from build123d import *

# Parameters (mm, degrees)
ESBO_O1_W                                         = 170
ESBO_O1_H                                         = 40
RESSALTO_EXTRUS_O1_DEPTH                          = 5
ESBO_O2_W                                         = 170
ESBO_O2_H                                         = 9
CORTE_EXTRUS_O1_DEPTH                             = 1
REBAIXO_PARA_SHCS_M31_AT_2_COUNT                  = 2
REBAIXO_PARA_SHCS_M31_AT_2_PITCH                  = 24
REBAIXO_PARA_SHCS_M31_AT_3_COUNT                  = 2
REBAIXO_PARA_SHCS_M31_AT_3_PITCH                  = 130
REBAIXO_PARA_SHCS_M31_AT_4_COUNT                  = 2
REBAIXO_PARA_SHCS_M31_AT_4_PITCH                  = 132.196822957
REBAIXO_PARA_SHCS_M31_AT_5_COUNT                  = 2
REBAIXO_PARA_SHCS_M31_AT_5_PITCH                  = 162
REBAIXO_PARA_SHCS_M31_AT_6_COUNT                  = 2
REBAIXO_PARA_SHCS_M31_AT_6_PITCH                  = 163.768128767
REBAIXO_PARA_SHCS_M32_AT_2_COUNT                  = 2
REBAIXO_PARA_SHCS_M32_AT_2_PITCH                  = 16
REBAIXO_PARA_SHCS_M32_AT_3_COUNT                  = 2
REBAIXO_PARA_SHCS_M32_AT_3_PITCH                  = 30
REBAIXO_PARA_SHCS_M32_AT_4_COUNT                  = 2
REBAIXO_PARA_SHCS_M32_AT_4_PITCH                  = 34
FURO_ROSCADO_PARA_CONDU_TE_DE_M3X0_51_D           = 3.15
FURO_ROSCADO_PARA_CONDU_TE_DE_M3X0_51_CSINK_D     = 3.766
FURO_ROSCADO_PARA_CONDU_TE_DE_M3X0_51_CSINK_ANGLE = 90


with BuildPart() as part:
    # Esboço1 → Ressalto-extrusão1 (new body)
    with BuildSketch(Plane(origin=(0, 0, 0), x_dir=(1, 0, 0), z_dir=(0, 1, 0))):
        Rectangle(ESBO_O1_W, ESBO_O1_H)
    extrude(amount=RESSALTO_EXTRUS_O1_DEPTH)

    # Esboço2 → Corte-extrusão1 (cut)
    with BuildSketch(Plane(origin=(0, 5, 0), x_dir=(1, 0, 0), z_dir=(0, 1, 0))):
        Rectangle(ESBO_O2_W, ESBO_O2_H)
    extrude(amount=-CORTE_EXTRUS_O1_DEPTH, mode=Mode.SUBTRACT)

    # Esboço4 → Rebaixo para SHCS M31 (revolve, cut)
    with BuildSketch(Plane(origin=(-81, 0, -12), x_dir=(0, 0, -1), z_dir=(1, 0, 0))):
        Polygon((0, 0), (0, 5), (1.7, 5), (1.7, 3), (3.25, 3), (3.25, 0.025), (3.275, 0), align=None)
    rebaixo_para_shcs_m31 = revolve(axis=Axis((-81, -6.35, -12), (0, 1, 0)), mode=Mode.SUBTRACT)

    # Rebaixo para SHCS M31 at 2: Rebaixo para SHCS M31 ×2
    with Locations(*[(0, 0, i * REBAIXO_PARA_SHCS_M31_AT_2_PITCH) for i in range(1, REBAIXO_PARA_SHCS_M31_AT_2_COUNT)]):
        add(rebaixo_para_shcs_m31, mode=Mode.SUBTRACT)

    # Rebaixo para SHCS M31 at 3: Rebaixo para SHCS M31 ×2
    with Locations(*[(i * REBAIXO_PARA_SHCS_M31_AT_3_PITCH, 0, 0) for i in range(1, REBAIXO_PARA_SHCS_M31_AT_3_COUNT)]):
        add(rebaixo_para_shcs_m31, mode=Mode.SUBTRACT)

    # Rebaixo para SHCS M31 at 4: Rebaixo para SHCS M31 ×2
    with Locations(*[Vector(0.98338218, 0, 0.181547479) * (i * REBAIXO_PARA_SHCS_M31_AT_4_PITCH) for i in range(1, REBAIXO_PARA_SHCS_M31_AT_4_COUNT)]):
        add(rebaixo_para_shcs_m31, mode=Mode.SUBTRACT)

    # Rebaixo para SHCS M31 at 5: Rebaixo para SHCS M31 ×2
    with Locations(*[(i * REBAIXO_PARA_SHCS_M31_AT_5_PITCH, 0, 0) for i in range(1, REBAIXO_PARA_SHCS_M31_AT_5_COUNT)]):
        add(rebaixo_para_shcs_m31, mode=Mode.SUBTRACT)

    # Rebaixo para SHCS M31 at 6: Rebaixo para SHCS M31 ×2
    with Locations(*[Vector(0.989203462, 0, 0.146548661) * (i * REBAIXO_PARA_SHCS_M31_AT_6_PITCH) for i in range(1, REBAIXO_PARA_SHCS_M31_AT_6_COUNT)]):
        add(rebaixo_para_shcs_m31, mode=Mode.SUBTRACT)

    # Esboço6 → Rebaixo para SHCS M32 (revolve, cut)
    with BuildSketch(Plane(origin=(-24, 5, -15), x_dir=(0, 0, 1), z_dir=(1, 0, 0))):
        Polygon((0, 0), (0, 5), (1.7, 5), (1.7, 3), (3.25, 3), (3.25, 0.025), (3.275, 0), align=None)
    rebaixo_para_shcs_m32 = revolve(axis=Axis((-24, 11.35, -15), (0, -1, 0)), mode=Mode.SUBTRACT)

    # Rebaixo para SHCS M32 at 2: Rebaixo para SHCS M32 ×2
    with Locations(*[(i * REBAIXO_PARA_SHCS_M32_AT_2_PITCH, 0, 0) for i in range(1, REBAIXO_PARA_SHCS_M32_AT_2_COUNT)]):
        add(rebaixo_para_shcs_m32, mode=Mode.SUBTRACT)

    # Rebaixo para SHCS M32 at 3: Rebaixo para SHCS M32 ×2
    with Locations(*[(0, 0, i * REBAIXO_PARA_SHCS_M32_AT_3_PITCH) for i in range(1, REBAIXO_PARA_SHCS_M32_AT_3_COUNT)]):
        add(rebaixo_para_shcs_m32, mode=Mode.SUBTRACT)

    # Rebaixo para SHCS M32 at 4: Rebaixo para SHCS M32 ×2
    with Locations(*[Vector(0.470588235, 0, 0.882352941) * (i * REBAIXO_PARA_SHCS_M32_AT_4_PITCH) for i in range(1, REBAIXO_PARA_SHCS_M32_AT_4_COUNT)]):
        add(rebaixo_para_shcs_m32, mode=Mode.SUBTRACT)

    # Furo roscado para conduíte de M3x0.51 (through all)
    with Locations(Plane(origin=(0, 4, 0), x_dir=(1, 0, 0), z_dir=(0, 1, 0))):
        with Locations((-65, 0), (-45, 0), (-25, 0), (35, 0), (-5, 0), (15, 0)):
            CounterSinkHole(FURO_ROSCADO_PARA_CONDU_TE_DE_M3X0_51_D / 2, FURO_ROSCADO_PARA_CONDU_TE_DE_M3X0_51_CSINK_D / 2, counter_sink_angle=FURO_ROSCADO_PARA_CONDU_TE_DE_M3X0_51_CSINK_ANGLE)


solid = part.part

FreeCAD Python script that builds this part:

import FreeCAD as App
import Part
import Sketcher
Q = App.Units.Quantity


def add_polygon(sketch, points):
    """Adds a closed chain of lines whose ends are joined by coincident constraints."""
    first, n = sketch.GeometryCount, len(points)
    for a, b in zip(points, points[1:] + points[:1]):
        sketch.addGeometry(Part.LineSegment(App.Vector(*a, 0), App.Vector(*b, 0)), False)
    for i in range(n):
        sketch.addConstraint(Sketcher.Constraint("Coincident", first + i, 2, first + (i + 1) % n, 1))

doc = App.newDocument("Part")
body = doc.addObject("PartDesign::Body", "Body")

# Sketch on XZ plane
sketch1 = doc.addObject("Sketcher::SketchObject", "Sketch")
body.addObject(sketch1)
sketch1.AttachmentSupport = (doc.XZ_Plane, [""])
sketch1.MapMode = "FlatFace"
add_polygon(sketch1, [(-85, -20), (-85, 20), (85, 20), (85, -20)])  # lines 0-3
sketch1.addConstraint(Sketcher.Constraint("Vertical", 0))
sketch1.addConstraint(Sketcher.Constraint("Horizontal", 1))
sketch1.addConstraint(Sketcher.Constraint("Vertical", 2))
sketch1.addConstraint(Sketcher.Constraint("Horizontal", 3))
sketch1.addConstraint(Sketcher.Constraint("Symmetric", 0, 2, 2, 2, -1, 1))
sketch1.addConstraint(Sketcher.Constraint("DistanceX", 1, 1, 1, 2, 170.0))
sketch1.addConstraint(Sketcher.Constraint("DistanceY", 0, 1, 0, 2, 40.0))
pad1 = doc.addObject("PartDesign::Pad", "Pad")
body.addObject(pad1)
pad1.Profile = sketch1
pad1.Length = 5
pad1.Reversed = True

# Sketch on XZ plane
sketch2 = doc.addObject("Sketcher::SketchObject", "Sketch001")
body.addObject(sketch2)
sketch2.AttachmentSupport = (doc.XZ_Plane, [""])
sketch2.MapMode = "FlatFace"
sketch2.AttachmentOffset = App.Placement(App.Vector(0, 0, -5), App.Rotation())
add_polygon(sketch2, [(-85, -4.5), (-85, 4.5), (85, 4.5), (85, -4.5)])  # lines 0-3
sketch2.addConstraint(Sketcher.Constraint("Vertical", 0))
sketch2.addConstraint(Sketcher.Constraint("Horizontal", 1))
sketch2.addConstraint(Sketcher.Constraint("Vertical", 2))
sketch2.addConstraint(Sketcher.Constraint("Horizontal", 3))
sketch2.addConstraint(Sketcher.Constraint("Symmetric", 0, 2, 2, 2, -1, 1))
sketch2.addConstraint(Sketcher.Constraint("DistanceX", 1, 1, 1, 2, 170.0))
sketch2.addConstraint(Sketcher.Constraint("DistanceY", 0, 1, 0, 2, 9.0))
pocket1 = doc.addObject("PartDesign::Pocket", "Pocket")
body.addObject(pocket1)
pocket1.Profile = sketch2
pocket1.Length = 1
pocket1.Reversed = True

# Sketch on YZ plane
sketch3 = doc.addObject("Sketcher::SketchObject", "Sketch002")
body.addObject(sketch3)
sketch3.AttachmentSupport = (doc.YZ_Plane, [""])
sketch3.MapMode = "FlatFace"
sketch3.AttachmentOffset = App.Placement(App.Vector(0, 0, -81), App.Rotation())
add_polygon(sketch3, [(5, -12), (0, -12), (0, -15.275), (0.025, -15.25), (3, -15.25), (3, -13.7), (5, -13.7)])  # lines 0-6
sketch3.addGeometry(Part.LineSegment(App.Vector(0, -12, 0), App.Vector(5, -12, 0)), True)  # axis
sketch3.addConstraint(Sketcher.Constraint("Horizontal", 0))
sketch3.addConstraint(Sketcher.Constraint("Vertical", 1))
sketch3.addConstraint(Sketcher.Constraint("Horizontal", 3))
sketch3.addConstraint(Sketcher.Constraint("Vertical", 4))
sketch3.addConstraint(Sketcher.Constraint("Horizontal", 5))
sketch3.addConstraint(Sketcher.Constraint("Vertical", 6))
sketch3.addConstraint(Sketcher.Constraint("Horizontal", 7))
sketch3.addConstraint(Sketcher.Constraint("Coincident", 7, 1, 0, 2))
sketch3.addConstraint(Sketcher.Constraint("PointOnObject", 0, 2, -2))
sketch3.addConstraint(Sketcher.Constraint("Vertical", 5, 2, 7, 2))
sketch3.addConstraint(Sketcher.Constraint("DistanceX", 0, 2, 0, 1, 5.0))
sketch3.addConstraint(Sketcher.Constraint("DistanceX", 5, 1, 5, 2, 2.0))
sketch3.addConstraint(Sketcher.Constraint("Angle", 2, Q("45 deg")))
sketch3.addConstraint(Sketcher.Constraint("DistanceY", 6, 1, 6, 2, 1.7))
sketch3.addConstraint(Sketcher.Constraint("DistanceY", 0, 2, -1, 1, 12.0))
sketch3.addConstraint(Sketcher.Constraint("DistanceY", 4, 1, 4, 2, 1.55))
sketch3.addConstraint(Sketcher.Constraint("DistanceX", 3, 1, 3, 2, 2.975))
groove = doc.addObject("PartDesign::Groove", "Groove")
body.addObject(groove)
groove.Profile = sketch3
groove.ReferenceAxis = (sketch3, ["Axis0"])
groove.Angle = 360
doc.recompute()

linearpattern = doc.addObject("PartDesign::LinearPattern", "LinearPattern")
body.addObject(linearpattern)
linearpattern.Originals = [groove]
linearpattern.Direction = (doc.Z_Axis, [""])
linearpattern.Mode = "offset"
linearpattern.Offset = 24
linearpattern.Occurrences = 2
body.Tip = linearpattern
doc.recompute()

linearpattern2 = doc.addObject("PartDesign::LinearPattern", "LinearPattern001")
body.addObject(linearpattern2)
linearpattern2.Originals = [groove]
linearpattern2.Direction = (doc.X_Axis, [""])
linearpattern2.Mode = "offset"
linearpattern2.Offset = 130
linearpattern2.Occurrences = 2
body.Tip = linearpattern2
doc.recompute()

datumline = doc.addObject("PartDesign::Line", "DatumLine")
body.addObject(datumline)
datumline.Placement = App.Placement(App.Vector(0, 0, 0), App.Rotation(App.Vector(0, 0, 1), App.Vector(0.98338218, 0, 0.181547479)))
linearpattern3 = doc.addObject("PartDesign::LinearPattern", "LinearPattern002")
body.addObject(linearpattern3)
linearpattern3.Originals = [groove]
linearpattern3.Direction = (datumline, [""])
linearpattern3.Mode = "offset"
linearpattern3.Offset = 132.196823
linearpattern3.Occurrences = 2
body.Tip = linearpattern3
doc.recompute()

linearpattern4 = doc.addObject("PartDesign::LinearPattern", "LinearPattern003")
body.addObject(linearpattern4)
linearpattern4.Originals = [groove]
linearpattern4.Direction = (doc.X_Axis, [""])
linearpattern4.Mode = "offset"
linearpattern4.Offset = 162
linearpattern4.Occurrences = 2
body.Tip = linearpattern4
doc.recompute()

datumline2 = doc.addObject("PartDesign::Line", "DatumLine001")
body.addObject(datumline2)
datumline2.Placement = App.Placement(App.Vector(0, 0, 0), App.Rotation(App.Vector(0, 0, 1), App.Vector(0.989203462, 0, 0.146548661)))
linearpattern5 = doc.addObject("PartDesign::LinearPattern", "LinearPattern004")
body.addObject(linearpattern5)
linearpattern5.Originals = [groove]
linearpattern5.Direction = (datumline2, [""])
linearpattern5.Mode = "offset"
linearpattern5.Offset = 163.768129
linearpattern5.Occurrences = 2
body.Tip = linearpattern5

# Sketch on YZ plane
sketch4 = doc.addObject("Sketcher::SketchObject", "Sketch003")
body.addObject(sketch4)
sketch4.AttachmentSupport = (doc.YZ_Plane, [""])
sketch4.MapMode = "FlatFace"
sketch4.AttachmentOffset = App.Placement(App.Vector(0, 0, -24), App.Rotation())
add_polygon(sketch4, [(0, -15), (5, -15), (5, -11.725), (4.975, -11.75), (2, -11.75), (2, -13.3), (0, -13.3)])  # lines 0-6
sketch4.addGeometry(Part.LineSegment(App.Vector(5, -15, 0), App.Vector(0, -15, 0)), True)  # axis
sketch4.addConstraint(Sketcher.Constraint("Horizontal", 0))
sketch4.addConstraint(Sketcher.Constraint("Vertical", 1))
sketch4.addConstraint(Sketcher.Constraint("Horizontal", 3))
sketch4.addConstraint(Sketcher.Constraint("Vertical", 4))
sketch4.addConstraint(Sketcher.Constraint("Horizontal", 5))
sketch4.addConstraint(Sketcher.Constraint("Vertical", 6))
sketch4.addConstraint(Sketcher.Constraint("Horizontal", 7))
sketch4.addConstraint(Sketcher.Constraint("Coincident", 7, 1, 0, 2))
sketch4.addConstraint(Sketcher.Constraint("PointOnObject", 5, 2, -2))
sketch4.addConstraint(Sketcher.Constraint("PointOnObject", 7, 2, -2))
sketch4.addConstraint(Sketcher.Constraint("DistanceX", 0, 1, 0, 2, 5.0))
sketch4.addConstraint(Sketcher.Constraint("DistanceX", 5, 2, 5, 1, 2.0))
sketch4.addConstraint(Sketcher.Constraint("Angle", 2, Q("-135 deg")))
sketch4.addConstraint(Sketcher.Constraint("DistanceY", 6, 2, 6, 1, 1.7))
sketch4.addConstraint(Sketcher.Constraint("DistanceY", 0, 2, -1, 1, 15.0))
sketch4.addConstraint(Sketcher.Constraint("DistanceY", 4, 2, 4, 1, 1.55))
sketch4.addConstraint(Sketcher.Constraint("DistanceX", 3, 2, 3, 1, 2.975))
groove2 = doc.addObject("PartDesign::Groove", "Groove001")
body.addObject(groove2)
groove2.Profile = sketch4
groove2.ReferenceAxis = (sketch4, ["Axis0"])
groove2.Angle = 360
doc.recompute()

linearpattern6 = doc.addObject("PartDesign::LinearPattern", "LinearPattern005")
body.addObject(linearpattern6)
linearpattern6.Originals = [groove2]
linearpattern6.Direction = (doc.X_Axis, [""])
linearpattern6.Mode = "offset"
linearpattern6.Offset = 16
linearpattern6.Occurrences = 2
body.Tip = linearpattern6
doc.recompute()

linearpattern7 = doc.addObject("PartDesign::LinearPattern", "LinearPattern006")
body.addObject(linearpattern7)
linearpattern7.Originals = [groove2]
linearpattern7.Direction = (doc.Z_Axis, [""])
linearpattern7.Mode = "offset"
linearpattern7.Offset = 30
linearpattern7.Occurrences = 2
body.Tip = linearpattern7
doc.recompute()

datumline3 = doc.addObject("PartDesign::Line", "DatumLine002")
body.addObject(datumline3)
datumline3.Placement = App.Placement(App.Vector(0, 0, 0), App.Rotation(App.Vector(0, 0, 1), App.Vector(0.470588235, 0, 0.882352941)))
linearpattern8 = doc.addObject("PartDesign::LinearPattern", "LinearPattern007")
body.addObject(linearpattern8)
linearpattern8.Originals = [groove2]
linearpattern8.Direction = (datumline3, [""])
linearpattern8.Mode = "offset"
linearpattern8.Offset = 34
linearpattern8.Occurrences = 2
body.Tip = linearpattern8

# Sketch on XZ plane
sketch5 = doc.addObject("Sketcher::SketchObject", "Sketch004")
body.addObject(sketch5)
sketch5.AttachmentSupport = (doc.XZ_Plane, [""])
sketch5.MapMode = "FlatFace"
sketch5.AttachmentOffset = App.Placement(App.Vector(0, 0, -4), App.Rotation())
sketch5.addGeometry(Part.Circle(App.Vector(-65, 0, 0), App.Vector(0, 0, 1), 1.575), False)
sketch5.addGeometry(Part.Circle(App.Vector(-45, 0, 0), App.Vector(0, 0, 1), 1.575), False)
sketch5.addGeometry(Part.Circle(App.Vector(-25, 0, 0), App.Vector(0, 0, 1), 1.575), False)
sketch5.addGeometry(Part.Circle(App.Vector(35, 0, 0), App.Vector(0, 0, 1), 1.575), False)
sketch5.addGeometry(Part.Circle(App.Vector(-5, 0, 0), App.Vector(0, 0, 1), 1.575), False)
sketch5.addGeometry(Part.Circle(App.Vector(15, 0, 0), App.Vector(0, 0, 1), 1.575), False)
sketch5.addConstraint(Sketcher.Constraint("Equal", 0, 1))
sketch5.addConstraint(Sketcher.Constraint("Equal", 1, 2))
sketch5.addConstraint(Sketcher.Constraint("Equal", 2, 3))
sketch5.addConstraint(Sketcher.Constraint("Equal", 3, 4))
sketch5.addConstraint(Sketcher.Constraint("Equal", 4, 5))
sketch5.addConstraint(Sketcher.Constraint("PointOnObject", 0, 3, -1))
sketch5.addConstraint(Sketcher.Constraint("PointOnObject", 1, 3, -1))
sketch5.addConstraint(Sketcher.Constraint("PointOnObject", 2, 3, -1))
sketch5.addConstraint(Sketcher.Constraint("PointOnObject", 3, 3, -1))
sketch5.addConstraint(Sketcher.Constraint("PointOnObject", 4, 3, -1))
sketch5.addConstraint(Sketcher.Constraint("PointOnObject", 5, 3, -1))
sketch5.addConstraint(Sketcher.Constraint("Diameter", 0, 3.15))
sketch5.addConstraint(Sketcher.Constraint("DistanceX", 0, 3, -1, 1, 65.0))
sketch5.addConstraint(Sketcher.Constraint("DistanceX", 1, 3, -1, 1, 45.0))
sketch5.addConstraint(Sketcher.Constraint("DistanceX", 2, 3, -1, 1, 25.0))
sketch5.addConstraint(Sketcher.Constraint("DistanceX", -1, 1, 3, 3, 35.0))
sketch5.addConstraint(Sketcher.Constraint("DistanceX", 4, 3, -1, 1, 5.0))
sketch5.addConstraint(Sketcher.Constraint("DistanceX", -1, 1, 5, 3, 15.0))
doc.recompute()
hole = doc.addObject("PartDesign::Hole", "Hole")
body.addObject(hole)
hole.Profile = sketch5
hole.ThreadType = "None"
hole.Diameter = 3.15
hole.DepthType = "ThroughAll"
hole.HoleCutType = "Countersink"
hole.HoleCutDiameter = 3.766
hole.HoleCutCountersinkAngle = 90
hole.Reversed = True

doc.recompute()
